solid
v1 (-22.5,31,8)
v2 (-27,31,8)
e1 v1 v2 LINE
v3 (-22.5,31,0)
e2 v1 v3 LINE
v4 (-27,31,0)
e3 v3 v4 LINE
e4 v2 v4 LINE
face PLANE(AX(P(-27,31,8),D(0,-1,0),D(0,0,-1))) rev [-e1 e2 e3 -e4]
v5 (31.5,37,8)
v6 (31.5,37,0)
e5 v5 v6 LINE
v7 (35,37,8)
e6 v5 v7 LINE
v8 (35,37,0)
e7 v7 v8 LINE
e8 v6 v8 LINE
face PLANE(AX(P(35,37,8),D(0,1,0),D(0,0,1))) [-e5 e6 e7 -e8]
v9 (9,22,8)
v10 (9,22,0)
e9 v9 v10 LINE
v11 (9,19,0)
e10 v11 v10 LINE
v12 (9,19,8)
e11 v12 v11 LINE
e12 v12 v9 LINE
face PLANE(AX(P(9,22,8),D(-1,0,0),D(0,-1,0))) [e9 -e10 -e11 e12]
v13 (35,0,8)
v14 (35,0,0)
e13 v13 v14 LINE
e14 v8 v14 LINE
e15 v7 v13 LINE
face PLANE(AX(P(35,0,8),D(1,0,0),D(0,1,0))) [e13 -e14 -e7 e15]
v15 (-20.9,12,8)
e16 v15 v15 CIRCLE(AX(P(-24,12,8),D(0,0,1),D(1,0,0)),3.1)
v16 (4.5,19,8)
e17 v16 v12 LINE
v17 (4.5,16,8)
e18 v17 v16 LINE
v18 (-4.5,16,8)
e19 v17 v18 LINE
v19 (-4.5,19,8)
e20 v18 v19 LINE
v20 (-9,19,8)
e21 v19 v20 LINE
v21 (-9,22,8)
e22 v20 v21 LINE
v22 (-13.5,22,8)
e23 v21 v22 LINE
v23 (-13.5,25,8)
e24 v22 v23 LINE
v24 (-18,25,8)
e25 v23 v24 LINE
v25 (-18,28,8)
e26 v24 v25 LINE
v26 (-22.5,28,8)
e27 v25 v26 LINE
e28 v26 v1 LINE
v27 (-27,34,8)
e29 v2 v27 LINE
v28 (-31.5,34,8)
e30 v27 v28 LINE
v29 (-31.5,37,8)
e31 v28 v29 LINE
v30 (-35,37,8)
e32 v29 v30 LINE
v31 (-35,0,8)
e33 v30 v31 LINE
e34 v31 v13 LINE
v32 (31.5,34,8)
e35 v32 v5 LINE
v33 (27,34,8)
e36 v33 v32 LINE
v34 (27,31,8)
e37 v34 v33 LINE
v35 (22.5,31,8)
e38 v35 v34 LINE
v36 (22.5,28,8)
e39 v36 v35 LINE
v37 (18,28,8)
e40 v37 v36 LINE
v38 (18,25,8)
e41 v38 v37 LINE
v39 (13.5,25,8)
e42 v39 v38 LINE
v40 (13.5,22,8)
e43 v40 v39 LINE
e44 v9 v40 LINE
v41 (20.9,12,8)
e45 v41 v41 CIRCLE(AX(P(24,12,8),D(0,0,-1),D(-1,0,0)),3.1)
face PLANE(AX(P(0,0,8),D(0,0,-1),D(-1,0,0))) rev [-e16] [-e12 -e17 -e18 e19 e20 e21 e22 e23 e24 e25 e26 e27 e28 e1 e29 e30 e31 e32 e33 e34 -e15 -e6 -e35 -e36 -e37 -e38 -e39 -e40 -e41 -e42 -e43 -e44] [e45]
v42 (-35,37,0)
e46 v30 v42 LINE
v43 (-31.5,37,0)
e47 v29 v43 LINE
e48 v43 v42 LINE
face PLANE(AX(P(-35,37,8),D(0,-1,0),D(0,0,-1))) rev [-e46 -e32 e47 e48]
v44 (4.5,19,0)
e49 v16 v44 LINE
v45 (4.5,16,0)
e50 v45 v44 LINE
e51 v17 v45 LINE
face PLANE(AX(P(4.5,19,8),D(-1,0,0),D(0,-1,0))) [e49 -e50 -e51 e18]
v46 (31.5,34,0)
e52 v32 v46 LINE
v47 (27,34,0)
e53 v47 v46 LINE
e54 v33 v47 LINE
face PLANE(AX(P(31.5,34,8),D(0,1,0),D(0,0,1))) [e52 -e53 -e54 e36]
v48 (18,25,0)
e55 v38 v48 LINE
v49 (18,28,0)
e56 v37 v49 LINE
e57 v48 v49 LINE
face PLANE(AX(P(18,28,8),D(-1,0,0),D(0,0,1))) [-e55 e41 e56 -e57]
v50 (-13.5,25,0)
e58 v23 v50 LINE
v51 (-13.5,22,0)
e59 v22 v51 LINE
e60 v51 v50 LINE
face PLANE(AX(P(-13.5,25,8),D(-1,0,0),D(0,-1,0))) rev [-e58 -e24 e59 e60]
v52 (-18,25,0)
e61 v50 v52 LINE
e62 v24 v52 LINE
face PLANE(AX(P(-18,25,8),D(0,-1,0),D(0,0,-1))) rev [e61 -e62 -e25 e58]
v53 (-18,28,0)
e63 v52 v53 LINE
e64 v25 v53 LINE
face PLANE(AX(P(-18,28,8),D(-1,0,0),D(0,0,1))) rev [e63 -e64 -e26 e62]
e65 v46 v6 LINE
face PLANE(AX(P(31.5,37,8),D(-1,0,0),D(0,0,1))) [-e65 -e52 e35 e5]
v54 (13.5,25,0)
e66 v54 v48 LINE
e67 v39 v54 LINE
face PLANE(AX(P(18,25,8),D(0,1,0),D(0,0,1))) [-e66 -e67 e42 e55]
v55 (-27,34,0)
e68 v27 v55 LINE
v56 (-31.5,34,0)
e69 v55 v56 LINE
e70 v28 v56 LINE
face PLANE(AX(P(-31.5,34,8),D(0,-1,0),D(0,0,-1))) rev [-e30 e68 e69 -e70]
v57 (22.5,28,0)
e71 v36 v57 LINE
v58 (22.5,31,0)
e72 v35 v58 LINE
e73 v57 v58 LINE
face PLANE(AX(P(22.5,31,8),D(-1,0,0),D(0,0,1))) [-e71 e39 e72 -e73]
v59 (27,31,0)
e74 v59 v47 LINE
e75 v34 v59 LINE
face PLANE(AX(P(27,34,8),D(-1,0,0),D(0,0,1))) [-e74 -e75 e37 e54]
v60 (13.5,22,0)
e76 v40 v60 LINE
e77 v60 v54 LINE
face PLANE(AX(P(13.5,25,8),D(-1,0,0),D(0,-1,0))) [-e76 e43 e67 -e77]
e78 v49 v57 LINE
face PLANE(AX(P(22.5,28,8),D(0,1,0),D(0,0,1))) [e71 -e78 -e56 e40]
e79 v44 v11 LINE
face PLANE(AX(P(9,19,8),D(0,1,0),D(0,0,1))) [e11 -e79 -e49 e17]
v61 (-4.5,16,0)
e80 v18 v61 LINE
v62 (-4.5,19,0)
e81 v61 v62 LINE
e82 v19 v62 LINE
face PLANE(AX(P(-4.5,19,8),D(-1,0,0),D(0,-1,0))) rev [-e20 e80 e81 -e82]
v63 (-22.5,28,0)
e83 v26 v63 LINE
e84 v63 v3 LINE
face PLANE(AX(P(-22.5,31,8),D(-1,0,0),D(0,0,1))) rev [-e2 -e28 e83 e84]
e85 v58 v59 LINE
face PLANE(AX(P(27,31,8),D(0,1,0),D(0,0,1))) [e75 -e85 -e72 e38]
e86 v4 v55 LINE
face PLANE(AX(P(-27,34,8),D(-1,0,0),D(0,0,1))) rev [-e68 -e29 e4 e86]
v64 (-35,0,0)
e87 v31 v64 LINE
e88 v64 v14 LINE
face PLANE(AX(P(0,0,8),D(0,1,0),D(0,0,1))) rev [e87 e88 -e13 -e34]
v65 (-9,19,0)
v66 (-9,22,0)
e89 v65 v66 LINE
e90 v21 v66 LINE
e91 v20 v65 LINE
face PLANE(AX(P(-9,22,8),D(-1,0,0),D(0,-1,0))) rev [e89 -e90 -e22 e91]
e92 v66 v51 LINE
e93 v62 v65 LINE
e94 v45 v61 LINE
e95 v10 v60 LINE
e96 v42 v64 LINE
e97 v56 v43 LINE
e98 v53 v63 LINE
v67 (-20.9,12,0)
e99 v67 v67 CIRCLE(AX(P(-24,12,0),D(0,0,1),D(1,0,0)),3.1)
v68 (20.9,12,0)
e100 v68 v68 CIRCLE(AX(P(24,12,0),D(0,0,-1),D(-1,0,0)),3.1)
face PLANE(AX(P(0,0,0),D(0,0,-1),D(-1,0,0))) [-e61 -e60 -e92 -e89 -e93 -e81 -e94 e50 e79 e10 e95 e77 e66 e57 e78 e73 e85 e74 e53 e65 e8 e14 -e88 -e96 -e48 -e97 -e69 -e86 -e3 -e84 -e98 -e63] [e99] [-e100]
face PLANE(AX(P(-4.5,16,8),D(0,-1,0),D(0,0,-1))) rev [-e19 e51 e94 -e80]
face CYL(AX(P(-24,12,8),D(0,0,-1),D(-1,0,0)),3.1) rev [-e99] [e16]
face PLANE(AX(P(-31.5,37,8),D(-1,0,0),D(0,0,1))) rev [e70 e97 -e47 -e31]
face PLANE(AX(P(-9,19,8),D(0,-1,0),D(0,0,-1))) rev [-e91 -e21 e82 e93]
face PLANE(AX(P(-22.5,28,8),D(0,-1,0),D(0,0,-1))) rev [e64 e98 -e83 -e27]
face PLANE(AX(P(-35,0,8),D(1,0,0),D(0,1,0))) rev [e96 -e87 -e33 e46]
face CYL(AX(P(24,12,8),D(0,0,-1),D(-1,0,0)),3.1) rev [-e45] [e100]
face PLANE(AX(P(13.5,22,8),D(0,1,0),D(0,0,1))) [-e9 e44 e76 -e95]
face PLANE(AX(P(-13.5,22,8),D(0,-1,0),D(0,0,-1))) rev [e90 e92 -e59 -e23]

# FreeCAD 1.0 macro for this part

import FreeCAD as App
import Part
import Sketcher

V = App.Vector

doc = App.newDocument("Part")
body = doc.addObject("PartDesign::Body", "Body")

# Sketch on XY plane
sketch1 = body.newObject("Sketcher::SketchObject", "Sketch")
sketch1.AttachmentSupport = (doc.getObject("XY_Plane"), [""])
sketch1.MapMode = "FlatFace"
sketch1.addGeometry([
    Part.LineSegment(V(-35, 37, 0), V(-35, 0, 0)),  # 0
    Part.LineSegment(V(-35, 0, 0), V(0, 0, 0)),  # 1
    Part.LineSegment(V(0, 0, 0), V(0, 16, 0)),  # 2
    Part.LineSegment(V(0, 16, 0), V(-4.5, 16, 0)),  # 3
    Part.LineSegment(V(-4.5, 16, 0), V(-4.5, 19, 0)),  # 4
    Part.LineSegment(V(-4.5, 19, 0), V(-9, 19, 0)),  # 5
    Part.LineSegment(V(-9, 19, 0), V(-9, 22, 0)),  # 6
    Part.LineSegment(V(-9, 22, 0), V(-13.5, 22, 0)),  # 7
    Part.LineSegment(V(-13.5, 22, 0), V(-13.5, 25, 0)),  # 8
    Part.LineSegment(V(-13.5, 25, 0), V(-18, 25, 0)),  # 9
    Part.LineSegment(V(-18, 25, 0), V(-18, 28, 0)),  # 10
    Part.LineSegment(V(-18, 28, 0), V(-22.5, 28, 0)),  # 11
    Part.LineSegment(V(-22.5, 28, 0), V(-22.5, 31, 0)),  # 12
    Part.LineSegment(V(-22.5, 31, 0), V(-27, 31, 0)),  # 13
    Part.LineSegment(V(-27, 31, 0), V(-27, 34, 0)),  # 14
    Part.LineSegment(V(-27, 34, 0), V(-31.5, 34, 0)),  # 15
    Part.LineSegment(V(-31.5, 34, 0), V(-31.5, 37, 0)),  # 16
    Part.LineSegment(V(-31.5, 37, 0), V(-35, 37, 0)),  # 17
    Part.Circle(V(-24, 12, 0), V(0, 0, 1), 3.1),  # 18
], False)
sketch1.addConstraint([
    Sketcher.Constraint("Coincident", 0, 2, 1, 1),
    Sketcher.Constraint("Coincident", 1, 2, 2, 1),
    Sketcher.Constraint("Coincident", 2, 2, 3, 1),
    Sketcher.Constraint("Coincident", 3, 2, 4, 1),
    Sketcher.Constraint("Coincident", 4, 2, 5, 1),
    Sketcher.Constraint("Coincident", 5, 2, 6, 1),
    Sketcher.Constraint("Coincident", 6, 2, 7, 1),
    Sketcher.Constraint("Coincident", 7, 2, 8, 1),
    Sketcher.Constraint("Coincident", 8, 2, 9, 1),
    Sketcher.Constraint("Coincident", 9, 2, 10, 1),
    Sketcher.Constraint("Coincident", 10, 2, 11, 1),
    Sketcher.Constraint("Coincident", 11, 2, 12, 1),
    Sketcher.Constraint("Coincident", 12, 2, 13, 1),
    Sketcher.Constraint("Coincident", 13, 2, 14, 1),
    Sketcher.Constraint("Coincident", 14, 2, 15, 1),
    Sketcher.Constraint("Coincident", 15, 2, 16, 1),
    Sketcher.Constraint("Coincident", 16, 2, 17, 1),
    Sketcher.Constraint("Coincident", 17, 2, 0, 1),
    Sketcher.Constraint("Vertical", 0),
    Sketcher.Constraint("Horizontal", 1),
    Sketcher.Constraint("Vertical", 2),
    Sketcher.Constraint("Horizontal", 3),
    Sketcher.Constraint("Vertical", 4),
    Sketcher.Constraint("Horizontal", 5),
    Sketcher.Constraint("Vertical", 6),
    Sketcher.Constraint("Horizontal", 7),
    Sketcher.Constraint("Vertical", 8),
    Sketcher.Constraint("Horizontal", 9),
    Sketcher.Constraint("Vertical", 10),
    Sketcher.Constraint("Horizontal", 11),
    Sketcher.Constraint("Vertical", 12),
    Sketcher.Constraint("Horizontal", 13),
    Sketcher.Constraint("Vertical", 14),
    Sketcher.Constraint("Horizontal", 15),
    Sketcher.Constraint("Vertical", 16),
    Sketcher.Constraint("Horizontal", 17),
    Sketcher.Constraint("Coincident", 1, 2, -1, 1),
    Sketcher.Constraint("Equal", 3, 5),
    Sketcher.Constraint("Equal", 5, 7),
    Sketcher.Constraint("Equal", 7, 9),
    Sketcher.Constraint("Equal", 9, 11),
    Sketcher.Constraint("Equal", 11, 13),
    Sketcher.Constraint("Equal", 13, 15),
    Sketcher.Constraint("Equal", 4, 6),
    Sketcher.Constraint("Equal", 6, 8),
    Sketcher.Constraint("Equal", 8, 10),
    Sketcher.Constraint("Equal", 10, 12),
    Sketcher.Constraint("Equal", 12, 14),
    Sketcher.Constraint("Equal", 14, 16),
    Sketcher.Constraint("Diameter", 18, 6.2),
    Sketcher.Constraint("DistanceX", 1, 1, 1, 2, 35.0),
    Sketcher.Constraint("DistanceY", 0, 2, 0, 1, 37.0),
    Sketcher.Constraint("DistanceY", 2, 1, 2, 2, 16.0),
    Sketcher.Constraint("DistanceX", 3, 2, 3, 1, 4.5),
    Sketcher.Constraint("DistanceX", 18, 3, -1, 1, 24.0),
    Sketcher.Constraint("DistanceY", -1, 1, 18, 3, 12.0),
])
pad1 = body.newObject("PartDesign::Pad", "Pad")
pad1.Profile = sketch1
pad1.Length = 8
doc.recompute()

mirrored = body.newObject("PartDesign::Mirrored", "Mirrored")
mirrored.Originals = [pad1]
mirrored.MirrorPlane = (doc.getObject("YZ_Plane"), [""])
body.Tip = mirrored

doc.recompute()
